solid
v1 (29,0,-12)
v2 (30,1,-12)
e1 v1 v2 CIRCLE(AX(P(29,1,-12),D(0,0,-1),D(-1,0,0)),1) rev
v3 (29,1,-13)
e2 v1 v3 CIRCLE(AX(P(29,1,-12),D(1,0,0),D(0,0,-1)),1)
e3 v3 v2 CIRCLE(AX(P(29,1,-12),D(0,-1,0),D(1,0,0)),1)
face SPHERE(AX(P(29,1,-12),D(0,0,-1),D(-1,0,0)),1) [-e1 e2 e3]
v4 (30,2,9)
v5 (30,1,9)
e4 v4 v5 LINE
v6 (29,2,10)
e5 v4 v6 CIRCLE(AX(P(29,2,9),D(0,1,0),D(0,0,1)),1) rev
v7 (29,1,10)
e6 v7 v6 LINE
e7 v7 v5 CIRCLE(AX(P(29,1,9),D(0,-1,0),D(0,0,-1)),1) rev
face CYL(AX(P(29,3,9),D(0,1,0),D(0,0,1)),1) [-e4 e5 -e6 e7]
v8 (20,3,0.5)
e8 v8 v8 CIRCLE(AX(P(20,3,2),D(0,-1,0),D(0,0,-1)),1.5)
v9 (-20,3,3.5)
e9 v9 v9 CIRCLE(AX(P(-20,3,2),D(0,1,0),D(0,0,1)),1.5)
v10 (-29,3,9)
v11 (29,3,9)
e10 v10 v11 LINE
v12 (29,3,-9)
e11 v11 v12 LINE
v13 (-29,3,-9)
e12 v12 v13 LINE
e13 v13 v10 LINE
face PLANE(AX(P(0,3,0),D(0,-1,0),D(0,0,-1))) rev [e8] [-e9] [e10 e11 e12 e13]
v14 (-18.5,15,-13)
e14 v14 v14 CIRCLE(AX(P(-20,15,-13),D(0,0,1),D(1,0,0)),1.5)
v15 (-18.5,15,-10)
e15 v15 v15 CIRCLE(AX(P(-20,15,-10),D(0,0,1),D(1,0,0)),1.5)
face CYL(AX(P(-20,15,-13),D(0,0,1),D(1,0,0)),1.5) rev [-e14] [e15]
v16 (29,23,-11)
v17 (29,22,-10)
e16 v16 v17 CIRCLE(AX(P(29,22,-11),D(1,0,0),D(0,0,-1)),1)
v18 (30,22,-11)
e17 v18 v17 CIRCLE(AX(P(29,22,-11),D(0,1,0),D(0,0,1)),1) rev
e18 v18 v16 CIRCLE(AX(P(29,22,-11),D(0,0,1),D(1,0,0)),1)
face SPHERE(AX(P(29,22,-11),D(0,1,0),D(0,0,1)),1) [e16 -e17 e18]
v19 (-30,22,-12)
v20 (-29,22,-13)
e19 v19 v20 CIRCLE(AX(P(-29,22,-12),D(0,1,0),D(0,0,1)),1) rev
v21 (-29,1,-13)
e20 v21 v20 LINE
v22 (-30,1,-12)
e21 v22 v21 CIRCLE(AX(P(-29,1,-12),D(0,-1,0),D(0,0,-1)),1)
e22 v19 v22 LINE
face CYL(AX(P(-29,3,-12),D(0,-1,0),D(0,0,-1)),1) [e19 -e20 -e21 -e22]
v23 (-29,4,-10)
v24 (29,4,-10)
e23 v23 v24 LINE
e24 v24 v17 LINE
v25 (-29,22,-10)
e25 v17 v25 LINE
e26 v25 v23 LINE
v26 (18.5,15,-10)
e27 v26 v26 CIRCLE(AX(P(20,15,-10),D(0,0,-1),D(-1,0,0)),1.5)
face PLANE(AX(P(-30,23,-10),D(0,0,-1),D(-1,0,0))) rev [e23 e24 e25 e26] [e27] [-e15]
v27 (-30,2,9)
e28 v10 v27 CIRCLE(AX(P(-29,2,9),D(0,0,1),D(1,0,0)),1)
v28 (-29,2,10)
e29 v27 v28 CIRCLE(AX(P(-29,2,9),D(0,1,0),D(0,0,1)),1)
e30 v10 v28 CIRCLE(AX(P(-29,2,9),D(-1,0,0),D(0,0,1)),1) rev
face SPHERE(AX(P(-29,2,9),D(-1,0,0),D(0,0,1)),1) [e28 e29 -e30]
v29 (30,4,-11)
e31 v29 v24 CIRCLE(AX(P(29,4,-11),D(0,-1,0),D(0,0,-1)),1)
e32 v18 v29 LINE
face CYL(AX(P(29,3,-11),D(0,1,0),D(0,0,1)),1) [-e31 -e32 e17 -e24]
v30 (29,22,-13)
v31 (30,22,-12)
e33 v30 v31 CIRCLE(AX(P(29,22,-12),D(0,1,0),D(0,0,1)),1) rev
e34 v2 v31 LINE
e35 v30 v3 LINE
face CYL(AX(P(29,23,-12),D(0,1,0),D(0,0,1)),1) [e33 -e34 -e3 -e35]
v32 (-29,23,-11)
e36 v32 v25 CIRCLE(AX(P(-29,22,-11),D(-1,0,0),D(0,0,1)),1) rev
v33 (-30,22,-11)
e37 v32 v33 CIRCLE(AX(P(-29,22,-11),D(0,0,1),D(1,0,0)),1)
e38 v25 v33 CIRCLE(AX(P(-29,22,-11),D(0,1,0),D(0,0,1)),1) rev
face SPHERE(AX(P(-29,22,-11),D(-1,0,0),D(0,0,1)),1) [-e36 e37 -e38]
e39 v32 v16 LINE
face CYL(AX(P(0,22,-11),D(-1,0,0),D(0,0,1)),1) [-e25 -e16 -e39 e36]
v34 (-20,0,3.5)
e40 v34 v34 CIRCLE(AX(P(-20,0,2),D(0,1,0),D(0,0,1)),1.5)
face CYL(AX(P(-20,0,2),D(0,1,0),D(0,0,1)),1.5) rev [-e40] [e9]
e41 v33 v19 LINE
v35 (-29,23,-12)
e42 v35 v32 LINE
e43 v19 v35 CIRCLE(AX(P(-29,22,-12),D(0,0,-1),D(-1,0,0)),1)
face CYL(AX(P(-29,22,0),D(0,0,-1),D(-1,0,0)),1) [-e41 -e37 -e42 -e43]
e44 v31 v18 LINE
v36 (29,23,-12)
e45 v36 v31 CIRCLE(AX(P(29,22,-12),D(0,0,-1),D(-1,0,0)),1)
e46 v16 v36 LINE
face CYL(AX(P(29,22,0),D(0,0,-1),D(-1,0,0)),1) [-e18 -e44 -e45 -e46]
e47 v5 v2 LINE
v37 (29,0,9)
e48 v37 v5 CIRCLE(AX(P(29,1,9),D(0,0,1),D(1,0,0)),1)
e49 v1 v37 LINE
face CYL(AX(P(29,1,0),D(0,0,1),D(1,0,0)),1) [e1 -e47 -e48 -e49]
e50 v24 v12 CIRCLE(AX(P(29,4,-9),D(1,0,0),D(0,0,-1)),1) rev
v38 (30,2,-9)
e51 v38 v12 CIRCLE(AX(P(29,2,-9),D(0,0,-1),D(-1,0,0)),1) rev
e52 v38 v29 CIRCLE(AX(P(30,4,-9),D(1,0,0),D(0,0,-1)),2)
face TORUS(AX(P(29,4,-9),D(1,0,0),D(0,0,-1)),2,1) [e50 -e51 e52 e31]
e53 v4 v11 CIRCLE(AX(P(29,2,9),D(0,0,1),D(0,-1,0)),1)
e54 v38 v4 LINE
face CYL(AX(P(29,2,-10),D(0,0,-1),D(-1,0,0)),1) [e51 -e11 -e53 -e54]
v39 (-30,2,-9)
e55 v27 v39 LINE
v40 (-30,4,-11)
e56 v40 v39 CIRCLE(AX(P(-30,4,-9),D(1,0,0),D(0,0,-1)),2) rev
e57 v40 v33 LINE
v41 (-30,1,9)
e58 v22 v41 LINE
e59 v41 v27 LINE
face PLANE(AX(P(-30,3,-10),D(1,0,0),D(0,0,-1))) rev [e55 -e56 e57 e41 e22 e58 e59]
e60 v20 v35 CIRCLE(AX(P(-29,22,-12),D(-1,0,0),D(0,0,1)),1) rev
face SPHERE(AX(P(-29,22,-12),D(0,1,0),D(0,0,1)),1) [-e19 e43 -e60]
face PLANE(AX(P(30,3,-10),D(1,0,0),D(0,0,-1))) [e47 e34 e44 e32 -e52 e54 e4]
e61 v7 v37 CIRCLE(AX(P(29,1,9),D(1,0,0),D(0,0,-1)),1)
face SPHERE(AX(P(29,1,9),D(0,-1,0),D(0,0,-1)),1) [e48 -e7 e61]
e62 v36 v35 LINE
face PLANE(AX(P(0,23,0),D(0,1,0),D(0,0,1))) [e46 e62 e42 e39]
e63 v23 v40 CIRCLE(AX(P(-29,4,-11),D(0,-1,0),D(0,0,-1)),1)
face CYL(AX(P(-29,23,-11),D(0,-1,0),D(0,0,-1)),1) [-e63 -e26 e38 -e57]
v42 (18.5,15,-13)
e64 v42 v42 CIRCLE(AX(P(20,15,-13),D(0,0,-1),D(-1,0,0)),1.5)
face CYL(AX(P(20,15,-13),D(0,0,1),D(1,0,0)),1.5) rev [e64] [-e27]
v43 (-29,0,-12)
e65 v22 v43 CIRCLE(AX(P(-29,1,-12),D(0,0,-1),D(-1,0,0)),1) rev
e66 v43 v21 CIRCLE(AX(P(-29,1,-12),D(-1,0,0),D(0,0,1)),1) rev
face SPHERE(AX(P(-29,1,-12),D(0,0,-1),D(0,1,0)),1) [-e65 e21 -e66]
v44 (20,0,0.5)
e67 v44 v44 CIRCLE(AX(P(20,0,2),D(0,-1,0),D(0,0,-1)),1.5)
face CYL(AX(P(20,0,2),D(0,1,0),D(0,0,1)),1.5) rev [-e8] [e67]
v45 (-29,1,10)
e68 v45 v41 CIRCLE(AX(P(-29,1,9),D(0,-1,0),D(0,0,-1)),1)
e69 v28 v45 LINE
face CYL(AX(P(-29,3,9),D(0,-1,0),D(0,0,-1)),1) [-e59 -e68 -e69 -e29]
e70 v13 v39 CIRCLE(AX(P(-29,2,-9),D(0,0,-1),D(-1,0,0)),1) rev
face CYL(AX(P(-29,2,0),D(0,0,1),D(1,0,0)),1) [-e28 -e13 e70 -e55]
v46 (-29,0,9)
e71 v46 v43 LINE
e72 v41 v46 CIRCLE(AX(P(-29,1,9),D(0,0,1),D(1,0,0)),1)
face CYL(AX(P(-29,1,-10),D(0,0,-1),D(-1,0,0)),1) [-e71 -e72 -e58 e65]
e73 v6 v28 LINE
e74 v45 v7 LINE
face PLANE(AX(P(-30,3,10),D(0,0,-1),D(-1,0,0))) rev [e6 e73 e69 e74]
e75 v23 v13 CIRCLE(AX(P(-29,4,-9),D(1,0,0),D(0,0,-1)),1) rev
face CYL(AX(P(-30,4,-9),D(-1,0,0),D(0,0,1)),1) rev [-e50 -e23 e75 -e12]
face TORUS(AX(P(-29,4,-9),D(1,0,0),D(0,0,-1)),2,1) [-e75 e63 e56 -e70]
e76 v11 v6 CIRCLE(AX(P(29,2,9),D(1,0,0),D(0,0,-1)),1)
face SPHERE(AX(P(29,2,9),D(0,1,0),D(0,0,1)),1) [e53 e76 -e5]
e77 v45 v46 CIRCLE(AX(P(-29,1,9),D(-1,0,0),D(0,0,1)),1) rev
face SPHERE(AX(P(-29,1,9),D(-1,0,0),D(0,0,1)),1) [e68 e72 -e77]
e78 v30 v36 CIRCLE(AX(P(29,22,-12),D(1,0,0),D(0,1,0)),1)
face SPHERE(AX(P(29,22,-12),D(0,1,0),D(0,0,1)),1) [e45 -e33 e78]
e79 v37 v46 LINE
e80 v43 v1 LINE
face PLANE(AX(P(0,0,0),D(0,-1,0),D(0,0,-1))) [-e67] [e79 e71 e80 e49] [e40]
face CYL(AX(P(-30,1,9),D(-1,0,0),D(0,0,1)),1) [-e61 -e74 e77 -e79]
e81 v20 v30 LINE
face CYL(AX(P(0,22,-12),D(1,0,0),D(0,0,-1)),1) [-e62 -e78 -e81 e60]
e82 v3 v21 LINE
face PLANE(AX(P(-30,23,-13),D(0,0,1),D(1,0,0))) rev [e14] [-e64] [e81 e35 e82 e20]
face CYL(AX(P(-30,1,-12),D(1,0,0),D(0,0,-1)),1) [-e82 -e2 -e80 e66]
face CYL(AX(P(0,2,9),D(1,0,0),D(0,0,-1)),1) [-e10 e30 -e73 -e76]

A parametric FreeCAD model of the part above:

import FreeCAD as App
import Part
import Sketcher
Q = App.Units.Quantity


def add_polygon(sketch, points):
    """Adds a closed chain of lines whose ends are joined by coincident constraints."""
    first, n = sketch.GeometryCount, len(points)
    for a, b in zip(points, points[1:] + points[:1]):
        sketch.addGeometry(Part.LineSegment(App.Vector(*a, 0), App.Vector(*b, 0)), False)
    for i in range(n):
        sketch.addConstraint(Sketcher.Constraint("Coincident", first + i, 2, first + (i + 1) % n, 1))

doc = App.newDocument("Part")
body = doc.addObject("PartDesign::Body", "Body")

sketch1 = body.newObject("Sketcher::SketchObject", "Sketch")
sketch1.AttachmentSupport = (doc.getObject("XZ_Plane"), [""])
sketch1.MapMode = "FlatFace"
add_polygon(sketch1, [(-30, -10), (-30, 10), (30, 10), (30, -10)])
sketch1.addConstraint([
    Sketcher.Constraint("Vertical", 0),
    Sketcher.Constraint("Horizontal", 1),
    Sketcher.Constraint("Vertical", 2),
    Sketcher.Constraint("Horizontal", 3),
    Sketcher.Constraint("Symmetric", 0, 2, 2, 2, -1, 1),
    Sketcher.Constraint("DistanceX", 1, 1, 1, 2, Q("60 mm")),
    Sketcher.Constraint("DistanceY", 0, 1, 0, 2, Q("20 mm")),
])
pad1 = body.newObject("PartDesign::Pad", "Pad")
pad1.Profile = sketch1
pad1.Length = 3
pad1.Reversed = True

sketch2 = body.newObject("Sketcher::SketchObject", "Sketch001")
sketch2.AttachmentSupport = (doc.getObject("XZ_Plane"), [""])
sketch2.MapMode = "FlatFace"
add_polygon(sketch2, [(-30, -13), (-30, -10), (30, -10), (30, -13)])
sketch2.addConstraint([
    Sketcher.Constraint("Vertical", 0),
    Sketcher.Constraint("Horizontal", 1),
    Sketcher.Constraint("Vertical", 2),
    Sketcher.Constraint("Horizontal", 3),
    Sketcher.Constraint("DistanceX", 1, 1, 1, 2, Q("60 mm")),
    Sketcher.Constraint("DistanceY", 0, 1, 0, 2, Q("3 mm")),
    Sketcher.Constraint("DistanceX", 0, 2, -1, 1, Q("30 mm")),
    Sketcher.Constraint("DistanceY", 0, 2, -1, 1, Q("10 mm")),
])
pad2 = body.newObject("PartDesign::Pad", "Pad001")
pad2.Profile = sketch2
pad2.Length = 23
pad2.Reversed = True
doc.recompute()

fillet = body.newObject("PartDesign::Fillet", "Fillet")
fillet.Base = (pad2, ["Edge1"])
fillet.UseAllEdges = True
fillet.Radius = 1

sketch3 = body.newObject("Sketcher::SketchObject", "Sketch002")
sketch3.AttachmentSupport = (doc.getObject("XZ_Plane"), [""])
sketch3.MapMode = "FlatFace"
sketch3.AttachmentOffset = App.Placement(App.Vector(0, 0, -3), App.Rotation())
sketch3.addGeometry([
    Part.Circle(App.Vector(-20, 2, 0), App.Vector(0, 0, 1), 1.5),
    Part.Circle(App.Vector(20, 2, 0), App.Vector(0, 0, 1), 1.5),
], False)
sketch3.addConstraint([
    Sketcher.Constraint("Equal", 0, 1),
    Sketcher.Constraint("Symmetric", 0, 3, 1, 3, -2),
    Sketcher.Constraint("Diameter", 0, Q("3 mm")),
    Sketcher.Constraint("DistanceX", 0, 3, -1, 1, Q("20 mm")),
    Sketcher.Constraint("DistanceY", -1, 1, 0, 3, Q("2 mm")),
])
pocket1 = body.newObject("PartDesign::Pocket", "Pocket")
pocket1.Profile = sketch3
pocket1.Type = "ThroughAll"
pocket1.Reversed = True

sketch4 = body.newObject("Sketcher::SketchObject", "Sketch003")
sketch4.AttachmentSupport = (doc.getObject("XY_Plane"), [""])
sketch4.MapMode = "FlatFace"
sketch4.AttachmentOffset = App.Placement(App.Vector(0, 0, -10), App.Rotation())
sketch4.addGeometry([
    Part.Circle(App.Vector(-20, 15, 0), App.Vector(0, 0, 1), 1.5),
    Part.Circle(App.Vector(20, 15, 0), App.Vector(0, 0, 1), 1.5),
], False)
sketch4.addConstraint([
    Sketcher.Constraint("Equal", 0, 1),
    Sketcher.Constraint("Symmetric", 0, 3, 1, 3, -2),
    Sketcher.Constraint("Diameter", 0, Q("3 mm")),
    Sketcher.Constraint("DistanceX", 0, 3, -1, 1, Q("20 mm")),
    Sketcher.Constraint("DistanceY", -1, 1, 0, 3, Q("15 mm")),
])
pocket2 = body.newObject("PartDesign::Pocket", "Pocket001")
pocket2.Profile = sketch4
pocket2.Type = "ThroughAll"

doc.recompute()
